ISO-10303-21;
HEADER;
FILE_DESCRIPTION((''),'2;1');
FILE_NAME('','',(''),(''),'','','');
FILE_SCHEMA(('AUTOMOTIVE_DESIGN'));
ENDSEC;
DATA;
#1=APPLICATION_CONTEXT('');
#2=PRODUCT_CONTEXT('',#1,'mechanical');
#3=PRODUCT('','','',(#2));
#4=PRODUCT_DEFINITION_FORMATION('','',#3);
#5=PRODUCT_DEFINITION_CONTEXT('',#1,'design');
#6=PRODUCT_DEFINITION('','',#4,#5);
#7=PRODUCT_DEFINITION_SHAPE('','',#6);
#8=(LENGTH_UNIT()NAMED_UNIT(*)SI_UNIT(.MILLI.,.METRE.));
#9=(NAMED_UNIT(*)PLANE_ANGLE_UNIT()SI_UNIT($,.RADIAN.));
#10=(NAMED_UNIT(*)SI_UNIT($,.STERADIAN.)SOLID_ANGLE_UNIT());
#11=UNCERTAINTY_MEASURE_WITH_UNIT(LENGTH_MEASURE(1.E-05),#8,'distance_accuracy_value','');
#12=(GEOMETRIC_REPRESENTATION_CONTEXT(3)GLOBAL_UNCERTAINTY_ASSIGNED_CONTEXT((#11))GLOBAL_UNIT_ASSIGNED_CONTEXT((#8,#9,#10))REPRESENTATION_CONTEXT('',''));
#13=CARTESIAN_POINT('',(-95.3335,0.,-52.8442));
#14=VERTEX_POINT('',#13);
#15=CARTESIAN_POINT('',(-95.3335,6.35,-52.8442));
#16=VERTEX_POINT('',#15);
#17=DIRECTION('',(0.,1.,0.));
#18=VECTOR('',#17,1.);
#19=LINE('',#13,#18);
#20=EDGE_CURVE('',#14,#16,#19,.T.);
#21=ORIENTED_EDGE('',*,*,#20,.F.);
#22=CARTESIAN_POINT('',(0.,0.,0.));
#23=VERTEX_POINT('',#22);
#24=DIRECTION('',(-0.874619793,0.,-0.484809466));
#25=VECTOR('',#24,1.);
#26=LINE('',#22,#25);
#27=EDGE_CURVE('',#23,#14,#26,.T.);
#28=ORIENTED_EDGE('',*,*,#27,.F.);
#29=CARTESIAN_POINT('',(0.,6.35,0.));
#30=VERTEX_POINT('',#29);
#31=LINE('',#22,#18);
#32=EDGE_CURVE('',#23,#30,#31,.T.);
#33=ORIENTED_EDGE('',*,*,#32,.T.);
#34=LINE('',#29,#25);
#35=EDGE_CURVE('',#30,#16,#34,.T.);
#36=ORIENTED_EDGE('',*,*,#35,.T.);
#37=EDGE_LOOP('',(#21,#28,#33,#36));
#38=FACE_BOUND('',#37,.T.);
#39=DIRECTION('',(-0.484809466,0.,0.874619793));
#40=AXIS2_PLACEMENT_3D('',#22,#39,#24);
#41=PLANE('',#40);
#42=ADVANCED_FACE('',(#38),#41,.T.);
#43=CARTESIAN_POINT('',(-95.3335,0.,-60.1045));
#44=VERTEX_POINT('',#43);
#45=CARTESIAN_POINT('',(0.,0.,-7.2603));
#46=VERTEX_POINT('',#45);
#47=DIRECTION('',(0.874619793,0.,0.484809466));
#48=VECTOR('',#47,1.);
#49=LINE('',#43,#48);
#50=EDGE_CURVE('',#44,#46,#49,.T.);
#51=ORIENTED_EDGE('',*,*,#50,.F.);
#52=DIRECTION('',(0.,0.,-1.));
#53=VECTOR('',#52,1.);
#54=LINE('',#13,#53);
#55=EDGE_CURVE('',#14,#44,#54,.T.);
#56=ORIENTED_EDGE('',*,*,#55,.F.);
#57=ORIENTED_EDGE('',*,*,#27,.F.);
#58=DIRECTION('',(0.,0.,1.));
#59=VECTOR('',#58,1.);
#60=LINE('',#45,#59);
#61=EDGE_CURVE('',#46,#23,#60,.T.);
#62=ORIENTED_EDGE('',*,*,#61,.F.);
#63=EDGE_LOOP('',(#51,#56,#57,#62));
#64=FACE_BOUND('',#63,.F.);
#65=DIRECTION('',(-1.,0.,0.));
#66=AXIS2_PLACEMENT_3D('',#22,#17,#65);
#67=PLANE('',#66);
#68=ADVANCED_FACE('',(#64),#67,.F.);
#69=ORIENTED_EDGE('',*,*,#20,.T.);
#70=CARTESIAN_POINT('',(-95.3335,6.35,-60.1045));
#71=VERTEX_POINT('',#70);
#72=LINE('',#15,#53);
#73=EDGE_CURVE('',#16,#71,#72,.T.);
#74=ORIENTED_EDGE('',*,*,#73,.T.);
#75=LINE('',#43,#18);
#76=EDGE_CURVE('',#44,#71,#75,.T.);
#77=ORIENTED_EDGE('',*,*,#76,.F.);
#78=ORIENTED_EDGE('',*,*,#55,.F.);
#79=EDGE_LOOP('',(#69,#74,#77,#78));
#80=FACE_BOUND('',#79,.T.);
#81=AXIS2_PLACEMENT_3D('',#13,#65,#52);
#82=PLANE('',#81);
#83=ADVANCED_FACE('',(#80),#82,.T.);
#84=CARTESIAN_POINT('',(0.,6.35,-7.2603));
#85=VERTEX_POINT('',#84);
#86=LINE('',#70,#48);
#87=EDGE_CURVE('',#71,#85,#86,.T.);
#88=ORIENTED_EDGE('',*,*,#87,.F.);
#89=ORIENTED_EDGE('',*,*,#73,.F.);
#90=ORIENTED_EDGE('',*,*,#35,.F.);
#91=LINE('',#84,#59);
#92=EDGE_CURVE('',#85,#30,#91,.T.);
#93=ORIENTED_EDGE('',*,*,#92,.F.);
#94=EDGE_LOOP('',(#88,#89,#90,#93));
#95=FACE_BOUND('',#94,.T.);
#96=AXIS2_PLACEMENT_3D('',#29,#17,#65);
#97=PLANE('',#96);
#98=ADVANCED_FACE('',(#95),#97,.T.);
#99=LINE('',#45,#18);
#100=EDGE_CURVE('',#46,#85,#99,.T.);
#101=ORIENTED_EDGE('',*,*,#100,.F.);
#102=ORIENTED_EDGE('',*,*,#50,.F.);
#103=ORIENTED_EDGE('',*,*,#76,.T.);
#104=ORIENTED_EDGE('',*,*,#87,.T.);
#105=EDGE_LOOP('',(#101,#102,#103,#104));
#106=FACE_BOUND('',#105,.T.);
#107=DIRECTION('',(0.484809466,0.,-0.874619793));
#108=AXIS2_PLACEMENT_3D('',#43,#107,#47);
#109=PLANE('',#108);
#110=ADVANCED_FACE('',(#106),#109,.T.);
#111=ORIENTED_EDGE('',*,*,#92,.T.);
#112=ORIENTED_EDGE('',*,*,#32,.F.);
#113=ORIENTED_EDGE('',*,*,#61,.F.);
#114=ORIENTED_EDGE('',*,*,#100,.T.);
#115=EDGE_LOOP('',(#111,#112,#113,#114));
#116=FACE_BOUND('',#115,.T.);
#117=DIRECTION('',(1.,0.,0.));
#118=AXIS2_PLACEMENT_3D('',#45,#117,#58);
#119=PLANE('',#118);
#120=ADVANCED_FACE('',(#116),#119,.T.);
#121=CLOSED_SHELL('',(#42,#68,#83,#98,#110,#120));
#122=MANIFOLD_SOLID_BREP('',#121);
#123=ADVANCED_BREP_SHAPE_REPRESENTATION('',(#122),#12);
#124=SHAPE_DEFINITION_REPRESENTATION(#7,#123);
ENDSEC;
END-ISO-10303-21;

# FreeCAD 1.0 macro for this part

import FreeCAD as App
import Part
import Sketcher
Q = App.Units.Quantity

doc = App.newDocument("Part")
params = doc.addObject("Spreadsheet::Sheet", "Params")
for row, (alias, value) in enumerate([
    ("sketch1_length", "109 mm"),
    ("pad1_length", "6.35 mm"),
], start=1):
    params.set(f"A{row}", alias)
    params.set(f"B{row}", "=" + value)
    params.setAlias(f"B{row}", alias)

body = doc.addObject("PartDesign::Body", "Body")

# Sketch on XZ plane
sketch1 = doc.addObject("Sketcher::SketchObject", "Sketch")
body.addObject(sketch1)
sketch1.AttachmentSupport = (doc.XZ_Plane, [""])
sketch1.MapMode = "FlatFace"
sketch1.addGeometry([
    Part.LineSegment(App.Vector(-95.3335, -52.8442, 0), App.Vector(0, 0, 0)),
    Part.LineSegment(App.Vector(0, 0, 0), App.Vector(0, -7.2603, 0)),
    Part.LineSegment(App.Vector(0, -7.2603, 0), App.Vector(-95.3335, -60.1045, 0)),
    Part.LineSegment(App.Vector(-95.3335, -60.1045, 0), App.Vector(-95.3335, -52.8442, 0)),
], False)
sketch1.addConstraint([
    Sketcher.Constraint("Coincident", 0, 2, 1, 1),
    Sketcher.Constraint("Coincident", 1, 2, 2, 1),
    Sketcher.Constraint("Coincident", 2, 2, 3, 1),
    Sketcher.Constraint("Coincident", 3, 2, 0, 1),
    Sketcher.Constraint("Vertical", 1),
    Sketcher.Constraint("Vertical", 3),
    Sketcher.Constraint("Coincident", 0, 2, -1, 1),
    Sketcher.Constraint("Parallel", 0, 2),
    Sketcher.Constraint("Angle", 0, Q("29 deg")),
    Sketcher.Constraint("Distance", 0, 109.0),
    Sketcher.Constraint("DistanceY", 1, 2, 1, 1, 7.2603),
])
sketch1.setExpression("Constraints[9]", "Params.sketch1_length")
pad1 = doc.addObject("PartDesign::Pad", "Pad")
body.addObject(pad1)
pad1.Profile = sketch1
pad1.setExpression("Length", "Params.pad1_length")
pad1.Reversed = True

doc.recompute()
